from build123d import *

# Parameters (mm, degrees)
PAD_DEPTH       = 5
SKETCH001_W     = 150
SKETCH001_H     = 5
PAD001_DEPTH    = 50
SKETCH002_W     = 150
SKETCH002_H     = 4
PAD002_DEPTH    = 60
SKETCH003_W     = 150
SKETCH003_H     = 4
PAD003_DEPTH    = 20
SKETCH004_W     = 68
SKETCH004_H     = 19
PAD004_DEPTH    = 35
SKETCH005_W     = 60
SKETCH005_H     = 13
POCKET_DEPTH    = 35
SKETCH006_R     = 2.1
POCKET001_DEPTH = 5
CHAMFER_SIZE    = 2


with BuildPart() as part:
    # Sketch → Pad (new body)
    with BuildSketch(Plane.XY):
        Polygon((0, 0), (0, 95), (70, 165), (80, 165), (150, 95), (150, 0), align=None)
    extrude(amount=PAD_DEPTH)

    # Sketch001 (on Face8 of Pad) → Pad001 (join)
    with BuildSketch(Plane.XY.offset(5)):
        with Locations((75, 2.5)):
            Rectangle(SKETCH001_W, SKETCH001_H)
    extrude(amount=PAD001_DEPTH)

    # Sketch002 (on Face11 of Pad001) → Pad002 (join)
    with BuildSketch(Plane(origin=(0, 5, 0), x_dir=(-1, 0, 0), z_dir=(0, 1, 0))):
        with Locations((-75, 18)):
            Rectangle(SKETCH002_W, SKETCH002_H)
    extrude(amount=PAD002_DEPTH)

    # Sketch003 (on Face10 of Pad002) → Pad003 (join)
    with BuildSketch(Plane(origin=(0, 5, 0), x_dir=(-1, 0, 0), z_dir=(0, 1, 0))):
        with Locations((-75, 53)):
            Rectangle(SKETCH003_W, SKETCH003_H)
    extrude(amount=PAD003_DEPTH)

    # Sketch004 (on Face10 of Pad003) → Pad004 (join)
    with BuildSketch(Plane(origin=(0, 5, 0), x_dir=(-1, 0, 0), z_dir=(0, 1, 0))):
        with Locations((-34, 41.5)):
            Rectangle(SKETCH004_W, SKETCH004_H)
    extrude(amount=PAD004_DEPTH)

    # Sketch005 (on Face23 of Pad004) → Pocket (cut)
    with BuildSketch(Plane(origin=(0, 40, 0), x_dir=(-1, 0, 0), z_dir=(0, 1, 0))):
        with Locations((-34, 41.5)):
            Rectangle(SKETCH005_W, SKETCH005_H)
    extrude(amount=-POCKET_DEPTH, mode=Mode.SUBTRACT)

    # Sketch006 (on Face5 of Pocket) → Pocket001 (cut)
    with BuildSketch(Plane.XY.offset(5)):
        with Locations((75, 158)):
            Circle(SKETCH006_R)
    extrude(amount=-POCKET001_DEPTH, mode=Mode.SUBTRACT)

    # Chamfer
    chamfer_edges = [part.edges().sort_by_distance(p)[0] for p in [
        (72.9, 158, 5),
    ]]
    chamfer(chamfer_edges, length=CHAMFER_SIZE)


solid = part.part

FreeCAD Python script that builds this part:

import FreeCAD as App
import Part
import Sketcher

V = App.Vector
Q = App.Units.Quantity


def edges_at(feature, points):
    """Names of the edges that pass closest to the given points."""
    edges = feature.Shape.Edges
    near = lambda p: min(range(len(edges)), key=lambda i: edges[i].distToShape(Part.Vertex(*p))[0])
    return sorted({f"Edge{near(p) + 1}" for p in points})


def add_polygon(sketch, points):
    """Adds a closed chain of lines whose ends are joined by coincident constraints."""
    first, n = sketch.GeometryCount, len(points)
    for a, b in zip(points, points[1:] + points[:1]):
        sketch.addGeometry(Part.LineSegment(App.Vector(*a, 0), App.Vector(*b, 0)), False)
    for i in range(n):
        sketch.addConstraint(Sketcher.Constraint("Coincident", first + i, 2, first + (i + 1) % n, 1))

doc = App.newDocument("Part")
body = doc.addObject("PartDesign::Body", "Body")

# Sketch on XY plane
sketch1 = body.newObject("Sketcher::SketchObject", "Sketch")
sketch1.AttachmentSupport = (doc.getObject("XY_Plane"), [""])
sketch1.MapMode = "FlatFace"
add_polygon(sketch1, [(0, 95), (0, 0), (150, 0), (150, 95), (80, 165), (70, 165)])  # lines 0-5
sketch1.addConstraint(Sketcher.Constraint("Vertical", 0))
sketch1.addConstraint(Sketcher.Constraint("Horizontal", 1))
sketch1.addConstraint(Sketcher.Constraint("Vertical", 2))
sketch1.addConstraint(Sketcher.Constraint("Horizontal", 4))
sketch1.addConstraint(Sketcher.Constraint("Coincident", 0, 2, -1, 1))
sketch1.addConstraint(Sketcher.Constraint("Perpendicular", 3, 5))
sketch1.addConstraint(Sketcher.Constraint("Horizontal", 2, 2, 5, 2))
sketch1.addConstraint(Sketcher.Constraint("Equal", 3, 5))
sketch1.addConstraint(Sketcher.Constraint("DistanceX", 1, 1, 1, 2, Q("150 mm")))
sketch1.addConstraint(Sketcher.Constraint("DistanceX", 4, 2, 4, 1, Q("10 mm")))
sketch1.addConstraint(Sketcher.Constraint("DistanceY", 0, 2, 0, 1, Q("95 mm")))
pad1 = body.newObject("PartDesign::Pad", "Pad")
pad1.Profile = sketch1
pad1.Length = 5

# Sketch on XY plane
sketch2 = body.newObject("Sketcher::SketchObject", "Sketch001")
sketch2.AttachmentSupport = (doc.getObject("XY_Plane"), [""])
sketch2.MapMode = "FlatFace"
sketch2.AttachmentOffset = App.Placement(V(0, 0, 5), App.Rotation())
add_polygon(sketch2, [(0, 5), (0, 0), (150, 0), (150, 5)])  # lines 0-3
sketch2.addConstraint(Sketcher.Constraint("Vertical", 0))
sketch2.addConstraint(Sketcher.Constraint("Horizontal", 1))
sketch2.addConstraint(Sketcher.Constraint("Vertical", 2))
sketch2.addConstraint(Sketcher.Constraint("Horizontal", 3))
sketch2.addConstraint(Sketcher.Constraint("Coincident", 0, 2, -1, 1))
sketch2.addConstraint(Sketcher.Constraint("DistanceX", 1, 1, 1, 2, Q("150 mm")))
sketch2.addConstraint(Sketcher.Constraint("DistanceY", 0, 2, 0, 1, Q("5 mm")))
pad2 = body.newObject("PartDesign::Pad", "Pad001")
pad2.Profile = sketch2
pad2.Length = 50

# Sketch on XZ plane
sketch3 = body.newObject("Sketcher::SketchObject", "Sketch002")
sketch3.AttachmentSupport = (doc.getObject("XZ_Plane"), [""])
sketch3.MapMode = "FlatFace"
sketch3.AttachmentOffset = App.Placement(V(0, 0, -5), App.Rotation())
add_polygon(sketch3, [(150, 20), (150, 16), (0, 16), (0, 20)])  # lines 0-3
sketch3.addConstraint(Sketcher.Constraint("Vertical", 0))
sketch3.addConstraint(Sketcher.Constraint("Horizontal", 1))
sketch3.addConstraint(Sketcher.Constraint("Vertical", 2))
sketch3.addConstraint(Sketcher.Constraint("Horizontal", 3))
sketch3.addConstraint(Sketcher.Constraint("PointOnObject", 1, 2, -2))
sketch3.addConstraint(Sketcher.Constraint("DistanceX", 1, 2, 1, 1, Q("150 mm")))
sketch3.addConstraint(Sketcher.Constraint("DistanceY", 0, 2, 0, 1, Q("4 mm")))
sketch3.addConstraint(Sketcher.Constraint("DistanceY", -1, 1, 0, 2, Q("16 mm")))
pad3 = body.newObject("PartDesign::Pad", "Pad002")
pad3.Profile = sketch3
pad3.Length = 60
pad3.Reversed = True

# Sketch on XZ plane
sketch4 = body.newObject("Sketcher::SketchObject", "Sketch003")
sketch4.AttachmentSupport = (doc.getObject("XZ_Plane"), [""])
sketch4.MapMode = "FlatFace"
sketch4.AttachmentOffset = App.Placement(V(0, 0, -5), App.Rotation())
add_polygon(sketch4, [(150, 55), (150, 51), (0, 51), (0, 55)])  # lines 0-3
sketch4.addConstraint(Sketcher.Constraint("Vertical", 0))
sketch4.addConstraint(Sketcher.Constraint("Horizontal", 1))
sketch4.addConstraint(Sketcher.Constraint("Vertical", 2))
sketch4.addConstraint(Sketcher.Constraint("Horizontal", 3))
sketch4.addConstraint(Sketcher.Constraint("PointOnObject", 1, 2, -2))
sketch4.addConstraint(Sketcher.Constraint("DistanceX", 1, 2, 1, 1, Q("150 mm")))
sketch4.addConstraint(Sketcher.Constraint("DistanceY", 0, 2, 0, 1, Q("4 mm")))
sketch4.addConstraint(Sketcher.Constraint("DistanceY", -1, 1, 0, 2, Q("51 mm")))
pad4 = body.newObject("PartDesign::Pad", "Pad003")
pad4.Profile = sketch4
pad4.Length = 20
pad4.Reversed = True

# Sketch on XZ plane
sketch5 = body.newObject("Sketcher::SketchObject", "Sketch004")
sketch5.AttachmentSupport = (doc.getObject("XZ_Plane"), [""])
sketch5.MapMode = "FlatFace"
sketch5.AttachmentOffset = App.Placement(V(0, 0, -5), App.Rotation())
add_polygon(sketch5, [(68, 51), (68, 32), (0, 32), (0, 51)])  # lines 0-3
sketch5.addConstraint(Sketcher.Constraint("Vertical", 0))
sketch5.addConstraint(Sketcher.Constraint("Horizontal", 1))
sketch5.addConstraint(Sketcher.Constraint("Vertical", 2))
sketch5.addConstraint(Sketcher.Constraint("Horizontal", 3))
sketch5.addConstraint(Sketcher.Constraint("PointOnObject", 1, 2, -2))
sketch5.addConstraint(Sketcher.Constraint("DistanceX", 1, 2, 1, 1, Q("68 mm")))
sketch5.addConstraint(Sketcher.Constraint("DistanceY", 0, 2, 0, 1, Q("19 mm")))
sketch5.addConstraint(Sketcher.Constraint("DistanceY", -1, 1, 0, 2, Q("32 mm")))
pad5 = body.newObject("PartDesign::Pad", "Pad004")
pad5.Profile = sketch5
pad5.Length = 35
pad5.Reversed = True

# Sketch on XZ plane
sketch6 = body.newObject("Sketcher::SketchObject", "Sketch005")
sketch6.AttachmentSupport = (doc.getObject("XZ_Plane"), [""])
sketch6.MapMode = "FlatFace"
sketch6.AttachmentOffset = App.Placement(V(0, 0, -40), App.Rotation())
add_polygon(sketch6, [(64, 48), (64, 35), (4, 35), (4, 48)])  # lines 0-3
sketch6.addConstraint(Sketcher.Constraint("Vertical", 0))
sketch6.addConstraint(Sketcher.Constraint("Horizontal", 1))
sketch6.addConstraint(Sketcher.Constraint("Vertical", 2))
sketch6.addConstraint(Sketcher.Constraint("Horizontal", 3))
sketch6.addConstraint(Sketcher.Constraint("DistanceX", 1, 2, 1, 1, Q("60 mm")))
sketch6.addConstraint(Sketcher.Constraint("DistanceY", 0, 2, 0, 1, Q("13 mm")))
sketch6.addConstraint(Sketcher.Constraint("DistanceX", -1, 1, 0, 2, Q("64 mm")))
sketch6.addConstraint(Sketcher.Constraint("DistanceY", -1, 1, 0, 2, Q("35 mm")))
pocket1 = body.newObject("PartDesign::Pocket", "Pocket")
pocket1.Profile = sketch6
pocket1.Length = 35
pocket1.Reversed = True

# Sketch on XY plane
sketch7 = body.newObject("Sketcher::SketchObject", "Sketch006")
sketch7.AttachmentSupport = (doc.getObject("XY_Plane"), [""])
sketch7.MapMode = "FlatFace"
sketch7.AttachmentOffset = App.Placement(V(0, 0, 5), App.Rotation())
sketch7.addGeometry(Part.Circle(V(75, 158, 0), V(0, 0, 1), 2.1), False)
sketch7.addConstraint(Sketcher.Constraint("Diameter", 0, Q("4.2 mm")))
sketch7.addConstraint(Sketcher.Constraint("DistanceX", -1, 1, 0, 3, Q("75 mm")))
sketch7.addConstraint(Sketcher.Constraint("DistanceY", -1, 1, 0, 3, Q("158 mm")))
pocket2 = body.newObject("PartDesign::Pocket", "Pocket001")
pocket2.Profile = sketch7
pocket2.Length = 5
doc.recompute()

chamfer = body.newObject("PartDesign::Chamfer", "Chamfer")
chamfer.Base = (pocket2, edges_at(pocket2, [(72.9, 158, 5)]))
chamfer.Size = 2

doc.recompute()
